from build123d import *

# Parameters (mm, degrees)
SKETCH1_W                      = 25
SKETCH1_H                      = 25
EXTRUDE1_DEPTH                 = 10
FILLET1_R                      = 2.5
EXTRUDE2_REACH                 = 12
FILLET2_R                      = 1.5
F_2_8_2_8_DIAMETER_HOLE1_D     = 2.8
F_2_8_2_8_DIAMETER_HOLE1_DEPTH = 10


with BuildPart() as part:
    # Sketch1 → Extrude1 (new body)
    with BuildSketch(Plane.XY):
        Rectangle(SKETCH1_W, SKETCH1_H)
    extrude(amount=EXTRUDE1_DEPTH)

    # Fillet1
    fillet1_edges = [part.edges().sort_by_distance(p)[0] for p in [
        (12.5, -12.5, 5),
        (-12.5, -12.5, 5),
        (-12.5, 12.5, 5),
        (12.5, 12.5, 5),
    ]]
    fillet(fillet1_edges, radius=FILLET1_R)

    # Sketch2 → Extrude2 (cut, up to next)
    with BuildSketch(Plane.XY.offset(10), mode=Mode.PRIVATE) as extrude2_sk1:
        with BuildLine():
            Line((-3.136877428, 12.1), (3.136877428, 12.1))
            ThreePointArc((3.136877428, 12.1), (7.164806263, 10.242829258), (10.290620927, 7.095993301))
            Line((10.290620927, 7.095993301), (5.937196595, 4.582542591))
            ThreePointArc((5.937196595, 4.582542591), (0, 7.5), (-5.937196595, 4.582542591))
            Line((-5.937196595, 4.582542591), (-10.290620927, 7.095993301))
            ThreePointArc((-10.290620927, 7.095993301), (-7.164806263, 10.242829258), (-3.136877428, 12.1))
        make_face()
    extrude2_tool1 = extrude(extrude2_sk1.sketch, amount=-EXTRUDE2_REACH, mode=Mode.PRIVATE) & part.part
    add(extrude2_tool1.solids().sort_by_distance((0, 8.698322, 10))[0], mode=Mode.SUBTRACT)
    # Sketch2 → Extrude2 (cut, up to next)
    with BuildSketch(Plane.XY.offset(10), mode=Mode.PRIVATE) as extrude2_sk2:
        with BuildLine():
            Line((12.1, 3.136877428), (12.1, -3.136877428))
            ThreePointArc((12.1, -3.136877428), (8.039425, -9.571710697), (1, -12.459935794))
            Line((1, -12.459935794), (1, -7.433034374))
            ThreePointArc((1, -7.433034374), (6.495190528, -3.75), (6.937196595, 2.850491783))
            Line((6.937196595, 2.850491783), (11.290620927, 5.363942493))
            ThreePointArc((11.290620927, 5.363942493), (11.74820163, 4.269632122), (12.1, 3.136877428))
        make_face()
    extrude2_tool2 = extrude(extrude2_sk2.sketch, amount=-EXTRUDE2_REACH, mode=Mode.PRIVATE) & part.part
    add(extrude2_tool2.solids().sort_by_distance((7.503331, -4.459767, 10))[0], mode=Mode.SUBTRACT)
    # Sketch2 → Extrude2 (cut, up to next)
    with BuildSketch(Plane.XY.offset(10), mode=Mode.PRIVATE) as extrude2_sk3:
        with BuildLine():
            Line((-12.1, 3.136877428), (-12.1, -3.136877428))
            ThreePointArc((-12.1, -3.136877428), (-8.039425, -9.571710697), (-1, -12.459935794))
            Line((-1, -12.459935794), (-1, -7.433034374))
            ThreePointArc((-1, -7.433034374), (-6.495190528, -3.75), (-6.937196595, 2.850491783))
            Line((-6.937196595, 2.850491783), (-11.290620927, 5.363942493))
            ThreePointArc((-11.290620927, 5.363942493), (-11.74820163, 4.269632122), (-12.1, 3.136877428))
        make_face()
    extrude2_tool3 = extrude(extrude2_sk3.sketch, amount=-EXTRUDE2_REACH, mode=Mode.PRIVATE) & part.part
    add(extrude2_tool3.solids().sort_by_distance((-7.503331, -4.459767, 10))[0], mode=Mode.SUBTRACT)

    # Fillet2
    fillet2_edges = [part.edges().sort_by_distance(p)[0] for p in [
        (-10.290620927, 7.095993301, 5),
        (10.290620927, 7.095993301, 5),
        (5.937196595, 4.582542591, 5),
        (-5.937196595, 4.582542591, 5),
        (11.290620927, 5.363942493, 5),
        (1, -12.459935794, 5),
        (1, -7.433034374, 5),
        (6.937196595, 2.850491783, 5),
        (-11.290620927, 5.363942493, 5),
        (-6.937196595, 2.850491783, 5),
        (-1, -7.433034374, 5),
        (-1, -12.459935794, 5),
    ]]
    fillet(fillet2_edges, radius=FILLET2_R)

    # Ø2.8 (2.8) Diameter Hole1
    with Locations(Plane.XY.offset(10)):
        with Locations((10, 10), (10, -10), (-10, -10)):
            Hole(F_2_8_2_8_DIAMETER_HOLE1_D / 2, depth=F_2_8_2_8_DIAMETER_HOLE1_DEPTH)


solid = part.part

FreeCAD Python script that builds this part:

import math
import FreeCAD as App
import Part
import Sketcher
Q = App.Units.Quantity


def edges_at(feature, points):
    """Names of the edges that pass closest to the given points."""
    edges = feature.Shape.Edges
    near = lambda p: min(range(len(edges)), key=lambda i: edges[i].distToShape(Part.Vertex(*p))[0])
    return sorted({f"Edge{near(p) + 1}" for p in points})

doc = App.newDocument("Part")
body = doc.addObject("PartDesign::Body", "Body")

sketch1 = body.newObject("Sketcher::SketchObject", "Sketch")
sketch1.AttachmentSupport = (doc.getObject("XY_Plane"), [""])
sketch1.MapMode = "FlatFace"
sketch1.addGeometry([
    Part.LineSegment(App.Vector(-12, 12, 0), App.Vector(-12, -12, 0)),
    Part.LineSegment(App.Vector(-12, -12, 0), App.Vector(12, -12, 0)),
    Part.LineSegment(App.Vector(12, -12, 0), App.Vector(12, 12, 0)),
    Part.LineSegment(App.Vector(12, 12, 0), App.Vector(-12, 12, 0)),
], False)
sketch1.addConstraint([
    Sketcher.Constraint("Coincident", 0, 2, 1, 1),
    Sketcher.Constraint("Coincident", 1, 2, 2, 1),
    Sketcher.Constraint("Coincident", 2, 2, 3, 1),
    Sketcher.Constraint("Coincident", 3, 2, 0, 1),
    Sketcher.Constraint("Vertical", 0),
    Sketcher.Constraint("Horizontal", 1),
    Sketcher.Constraint("Vertical", 2),
    Sketcher.Constraint("Horizontal", 3),
    Sketcher.Constraint("Symmetric", 0, 2, 2, 2, -1, 1),
    Sketcher.Constraint("Equal", 3, 0),
    Sketcher.Constraint("DistanceX", 1, 1, 1, 2, Q("25 mm")),
])
pad1 = body.newObject("PartDesign::Pad", "Pad")
pad1.Profile = sketch1
pad1.Length = 10
doc.recompute()

fillet = body.newObject("PartDesign::Fillet", "Fillet")
fillet.Base = (pad1, edges_at(pad1, [
    (12.5, -12.5, 5),
    (-12.5, -12.5, 5),
    (-12.5, 12.5, 5),
    (12.5, 12.5, 5),
]))
fillet.Radius = 2.5

sketch2 = body.newObject("Sketcher::SketchObject", "Sketch001")
sketch2.AttachmentSupport = (doc.getObject("XY_Plane"), [""])
sketch2.MapMode = "FlatFace"
sketch2.AttachmentOffset = App.Placement(App.Vector(0, 0, 10), App.Rotation())
sketch2.addGeometry([
    Part.LineSegment(App.Vector(3, 12, 0), App.Vector(-3, 12, 0)),
    Part.ArcOfCircle(Part.Circle(App.Vector(0, 0, 0), App.Vector(0, 0, 1), 12), math.radians(105), math.radians(145)),
    Part.LineSegment(App.Vector(-10, 7, 0), App.Vector(-6, 5, 0)),
    Part.ArcOfCircle(Part.Circle(App.Vector(0, 0, 0), App.Vector(0, 0, 1), 8), math.radians(38), math.radians(142)),
    Part.LineSegment(App.Vector(6, 5, 0), App.Vector(10, 7, 0)),
    Part.ArcOfCircle(Part.Circle(App.Vector(0, 0, 0), App.Vector(0, 0, 1), 12), math.radians(35), math.radians(75)),
], False)
sketch2.addConstraint([
    Sketcher.Constraint("Coincident", 0, 2, 1, 1),
    Sketcher.Constraint("Coincident", 1, 2, 2, 1),
    Sketcher.Constraint("Coincident", 2, 2, 3, 2),
    Sketcher.Constraint("Coincident", 3, 1, 4, 1),
    Sketcher.Constraint("Coincident", 4, 2, 5, 1),
    Sketcher.Constraint("Coincident", 5, 2, 0, 1),
    Sketcher.Constraint("Horizontal", 0),
    Sketcher.Constraint("Coincident", 1, 3, -1, 1),
    Sketcher.Constraint("Coincident", 3, 3, -1, 1),
    Sketcher.Constraint("Coincident", 5, 3, -1, 1),
    Sketcher.Constraint("Equal", 1, 5),
    Sketcher.Constraint("Horizontal", 2, 2, 3, 1),
    Sketcher.Constraint("Horizontal", 1, 2, 4, 2),
    Sketcher.Constraint("Radius", 1, Q("12.5 mm")),
    Sketcher.Constraint("Radius", 3, Q("7.5 mm")),
    Sketcher.Constraint("Angle", 2, Q("-30 deg")),
    Sketcher.Constraint("DistanceY", -1, 1, 0, 2, Q("12.1 mm")),
    Sketcher.Constraint("Distance", 2, Q("5.026901 mm")),
])
pocket1 = body.newObject("PartDesign::Pocket", "Pocket")
pocket1.Profile = sketch2
pocket1.Type = "UpToFirst"

sketch3 = body.newObject("Sketcher::SketchObject", "Sketch002")
sketch3.AttachmentSupport = (doc.getObject("XY_Plane"), [""])
sketch3.MapMode = "FlatFace"
sketch3.AttachmentOffset = App.Placement(App.Vector(0, 0, 10), App.Rotation())
sketch3.addGeometry([
    Part.LineSegment(App.Vector(12.1, -3.1, 0), App.Vector(12.1, 3.1, 0)),
    Part.ArcOfCircle(Part.Circle(App.Vector(0, 0, 0), App.Vector(0, 0, 1), 12.5), math.radians(14.53), math.radians(25.41)),
    Part.LineSegment(App.Vector(11.3, 5.4, 0), App.Vector(6.9, 2.9, 0)),
    Part.ArcOfCircle(Part.Circle(App.Vector(0, 0, 0), App.Vector(0, 0, 1), 7.5), math.radians(-82), math.radians(22)),
    Part.LineSegment(App.Vector(1, -7.4, 0), App.Vector(1, -12.5, 0)),
    Part.ArcOfCircle(Part.Circle(App.Vector(0, 0, 0), App.Vector(0, 0, 1), 12.5), math.radians(-85), math.radians(-15)),
], False)
sketch3.addConstraint([
    Sketcher.Constraint("Coincident", 0, 2, 1, 1),
    Sketcher.Constraint("Coincident", 1, 2, 2, 1),
    Sketcher.Constraint("Coincident", 2, 2, 3, 2),
    Sketcher.Constraint("Coincident", 3, 1, 4, 1),
    Sketcher.Constraint("Coincident", 4, 2, 5, 1),
    Sketcher.Constraint("Coincident", 5, 2, 0, 1),
    Sketcher.Constraint("Vertical", 0),
    Sketcher.Constraint("Vertical", 4),
    Sketcher.Constraint("Coincident", 1, 3, -1, 1),
    Sketcher.Constraint("Coincident", 3, 3, -1, 1),
    Sketcher.Constraint("Coincident", 5, 3, -1, 1),
    Sketcher.Constraint("Equal", 1, 5),
    Sketcher.Constraint("Radius", 1, Q("12.5 mm")),
    Sketcher.Constraint("Radius", 3, Q("7.5 mm")),
    Sketcher.Constraint("Angle", 2, Q("-150 deg")),
    Sketcher.Constraint("DistanceX", -1, 1, 3, 1, Q("1 mm")),
    Sketcher.Constraint("DistanceX", -1, 1, 0, 2, Q("12.1 mm")),
    Sketcher.Constraint("Distance", 2, Q("5.026901 mm")),
])
pocket2 = body.newObject("PartDesign::Pocket", "Pocket001")
pocket2.Profile = sketch3
pocket2.Type = "UpToFirst"

sketch4 = body.newObject("Sketcher::SketchObject", "Sketch003")
sketch4.AttachmentSupport = (doc.getObject("XY_Plane"), [""])
sketch4.MapMode = "FlatFace"
sketch4.AttachmentOffset = App.Placement(App.Vector(0, 0, 10), App.Rotation())
sketch4.addGeometry([
    Part.LineSegment(App.Vector(-12.1, 3.1, 0), App.Vector(-12.1, -3.1, 0)),
    Part.ArcOfCircle(Part.Circle(App.Vector(0, 0, 0), App.Vector(0, 0, 1), 12.5), math.radians(-165), math.radians(-95)),
    Part.LineSegment(App.Vector(-1, -12.5, 0), App.Vector(-1, -7.4, 0)),
    Part.ArcOfCircle(Part.Circle(App.Vector(0, 0, 0), App.Vector(0, 0, 1), 7.5), math.radians(158), math.radians(262)),
    Part.LineSegment(App.Vector(-6.9, 2.9, 0), App.Vector(-11.3, 5.4, 0)),
    Part.ArcOfCircle(Part.Circle(App.Vector(0, 0, 0), App.Vector(0, 0, 1), 12.5), math.radians(154.59), math.radians(165.47)),
], False)
sketch4.addConstraint([
    Sketcher.Constraint("Coincident", 0, 2, 1, 1),
    Sketcher.Constraint("Coincident", 1, 2, 2, 1),
    Sketcher.Constraint("Coincident", 2, 2, 3, 2),
    Sketcher.Constraint("Coincident", 3, 1, 4, 1),
    Sketcher.Constraint("Coincident", 4, 2, 5, 1),
    Sketcher.Constraint("Coincident", 5, 2, 0, 1),
    Sketcher.Constraint("Vertical", 0),
    Sketcher.Constraint("Vertical", 2),
    Sketcher.Constraint("Coincident", 1, 3, -1, 1),
    Sketcher.Constraint("Coincident", 3, 3, -1, 1),
    Sketcher.Constraint("Coincident", 5, 3, -1, 1),
    Sketcher.Constraint("Equal", 1, 5),
    Sketcher.Constraint("Radius", 1, Q("12.5 mm")),
    Sketcher.Constraint("Radius", 3, Q("7.5 mm")),
    Sketcher.Constraint("Angle", 4, Q("150 deg")),
    Sketcher.Constraint("DistanceX", 1, 2, -1, 1, Q("1 mm")),
    Sketcher.Constraint("DistanceX", 0, 2, -1, 1, Q("12.1 mm")),
    Sketcher.Constraint("Distance", 4, Q("5.026901 mm")),
])
pocket3 = body.newObject("PartDesign::Pocket", "Pocket002")
pocket3.Profile = sketch4
pocket3.Type = "UpToFirst"
doc.recompute()

fillet2 = body.newObject("PartDesign::Fillet", "Fillet001")
fillet2.Base = (pocket3, edges_at(pocket3, [
    (-10.291, 7.096, 5),
    (10.291, 7.096, 5),
    (5.937, 4.583, 5),
    (-5.937, 4.583, 5),
    (11.291, 5.364, 5),
    (1, -12.46, 5),
    (1, -7.433, 5),
    (6.937, 2.85, 5),
    (-11.291, 5.364, 5),
    (-6.937, 2.85, 5),
    (-1, -7.433, 5),
    (-1, -12.46, 5),
]))
fillet2.Radius = 1.5

sketch5 = body.newObject("Sketcher::SketchObject", "Sketch004")
sketch5.AttachmentSupport = (doc.getObject("XY_Plane"), [""])
sketch5.MapMode = "FlatFace"
sketch5.AttachmentOffset = App.Placement(App.Vector(0, 0, 10), App.Rotation())
sketch5.addGeometry([
    Part.Circle(App.Vector(10, 10, 0), App.Vector(0, 0, 1), 1.4),
    Part.Circle(App.Vector(10, -10, 0), App.Vector(0, 0, 1), 1.4),
    Part.Circle(App.Vector(-10, -10, 0), App.Vector(0, 0, 1), 1.4),
], False)
sketch5.addConstraint([
    Sketcher.Constraint("Equal", 0, 1),
    Sketcher.Constraint("Equal", 1, 2),
    Sketcher.Constraint("Symmetric", 0, 3, 2, 3, -1, 1),
    Sketcher.Constraint("Symmetric", 1, 3, 2, 3, -2),
    Sketcher.Constraint("Diameter", 0, Q("2.8 mm")),
    Sketcher.Constraint("DistanceX", -1, 1, 0, 3, Q("10 mm")),
    Sketcher.Constraint("DistanceY", -1, 1, 0, 3, Q("10 mm")),
])
doc.recompute()
hole = body.newObject("PartDesign::Hole", "Hole")
hole.Profile = sketch5
hole.ThreadType = "None"
hole.Diameter = 2.8
hole.DepthType = "Dimension"
hole.Depth = 10
hole.DrillPoint = "Flat"

doc.recompute()
